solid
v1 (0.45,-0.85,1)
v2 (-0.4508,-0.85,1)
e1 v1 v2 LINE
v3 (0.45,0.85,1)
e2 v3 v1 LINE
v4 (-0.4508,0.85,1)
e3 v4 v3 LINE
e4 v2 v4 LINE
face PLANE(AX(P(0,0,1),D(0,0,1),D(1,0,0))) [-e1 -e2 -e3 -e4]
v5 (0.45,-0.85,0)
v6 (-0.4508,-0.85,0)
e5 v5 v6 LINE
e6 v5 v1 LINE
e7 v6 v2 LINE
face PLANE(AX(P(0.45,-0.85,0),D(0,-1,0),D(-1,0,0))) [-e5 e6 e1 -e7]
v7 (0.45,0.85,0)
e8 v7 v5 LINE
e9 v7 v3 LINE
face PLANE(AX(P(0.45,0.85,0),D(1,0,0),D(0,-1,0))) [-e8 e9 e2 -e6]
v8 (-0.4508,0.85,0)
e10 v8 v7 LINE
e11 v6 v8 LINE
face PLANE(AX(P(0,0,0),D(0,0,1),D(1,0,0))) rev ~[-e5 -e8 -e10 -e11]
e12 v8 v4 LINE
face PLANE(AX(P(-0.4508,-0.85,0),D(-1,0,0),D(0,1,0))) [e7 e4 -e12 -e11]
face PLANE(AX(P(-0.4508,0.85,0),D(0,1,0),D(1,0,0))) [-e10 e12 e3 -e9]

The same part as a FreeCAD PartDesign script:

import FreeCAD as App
import Part
import Sketcher
from FreeCAD import Vector


def add_polygon(sketch, points):
    """Adds a closed chain of lines whose ends are joined by coincident constraints."""
    first, n = sketch.GeometryCount, len(points)
    for a, b in zip(points, points[1:] + points[:1]):
        sketch.addGeometry(Part.LineSegment(App.Vector(*a, 0), App.Vector(*b, 0)), False)
    for i in range(n):
        sketch.addConstraint(Sketcher.Constraint("Coincident", first + i, 2, first + (i + 1) % n, 1))

doc = App.newDocument("Part")
body = doc.addObject("PartDesign::Body", "Body")

# Sketch on XY plane
sketch1 = body.newObject("Sketcher::SketchObject", "Sketch")
sketch1.AttachmentSupport = (doc.getObject("XY_Plane"), [""])
sketch1.MapMode = "FlatFace"
add_polygon(sketch1, [(0.45, 0.85), (-0.4508, 0.85), (-0.4508, -0.85), (0.45, -0.85)])  # lines 0-3
sketch1.addConstraint(Sketcher.Constraint("Horizontal", 0))
sketch1.addConstraint(Sketcher.Constraint("Vertical", 1))
sketch1.addConstraint(Sketcher.Constraint("Horizontal", 2))
sketch1.addConstraint(Sketcher.Constraint("Vertical", 3))
sketch1.addConstraint(Sketcher.Constraint("DistanceY", 1, 2, 1, 1, 1.7))
sketch1.addConstraint(Sketcher.Constraint("DistanceY", -1, 1, 0, 2, 0.85))
sketch1.addConstraint(Sketcher.Constraint("DistanceX", -1, 1, 2, 2, 0.45))
sketch1.addConstraint(Sketcher.Constraint("DistanceX", 0, 2, 0, 1, 0.9008))
pad1 = body.newObject("PartDesign::Pad", "Pad")
pad1.Profile = sketch1
pad1.Length = 1

doc.recompute()
